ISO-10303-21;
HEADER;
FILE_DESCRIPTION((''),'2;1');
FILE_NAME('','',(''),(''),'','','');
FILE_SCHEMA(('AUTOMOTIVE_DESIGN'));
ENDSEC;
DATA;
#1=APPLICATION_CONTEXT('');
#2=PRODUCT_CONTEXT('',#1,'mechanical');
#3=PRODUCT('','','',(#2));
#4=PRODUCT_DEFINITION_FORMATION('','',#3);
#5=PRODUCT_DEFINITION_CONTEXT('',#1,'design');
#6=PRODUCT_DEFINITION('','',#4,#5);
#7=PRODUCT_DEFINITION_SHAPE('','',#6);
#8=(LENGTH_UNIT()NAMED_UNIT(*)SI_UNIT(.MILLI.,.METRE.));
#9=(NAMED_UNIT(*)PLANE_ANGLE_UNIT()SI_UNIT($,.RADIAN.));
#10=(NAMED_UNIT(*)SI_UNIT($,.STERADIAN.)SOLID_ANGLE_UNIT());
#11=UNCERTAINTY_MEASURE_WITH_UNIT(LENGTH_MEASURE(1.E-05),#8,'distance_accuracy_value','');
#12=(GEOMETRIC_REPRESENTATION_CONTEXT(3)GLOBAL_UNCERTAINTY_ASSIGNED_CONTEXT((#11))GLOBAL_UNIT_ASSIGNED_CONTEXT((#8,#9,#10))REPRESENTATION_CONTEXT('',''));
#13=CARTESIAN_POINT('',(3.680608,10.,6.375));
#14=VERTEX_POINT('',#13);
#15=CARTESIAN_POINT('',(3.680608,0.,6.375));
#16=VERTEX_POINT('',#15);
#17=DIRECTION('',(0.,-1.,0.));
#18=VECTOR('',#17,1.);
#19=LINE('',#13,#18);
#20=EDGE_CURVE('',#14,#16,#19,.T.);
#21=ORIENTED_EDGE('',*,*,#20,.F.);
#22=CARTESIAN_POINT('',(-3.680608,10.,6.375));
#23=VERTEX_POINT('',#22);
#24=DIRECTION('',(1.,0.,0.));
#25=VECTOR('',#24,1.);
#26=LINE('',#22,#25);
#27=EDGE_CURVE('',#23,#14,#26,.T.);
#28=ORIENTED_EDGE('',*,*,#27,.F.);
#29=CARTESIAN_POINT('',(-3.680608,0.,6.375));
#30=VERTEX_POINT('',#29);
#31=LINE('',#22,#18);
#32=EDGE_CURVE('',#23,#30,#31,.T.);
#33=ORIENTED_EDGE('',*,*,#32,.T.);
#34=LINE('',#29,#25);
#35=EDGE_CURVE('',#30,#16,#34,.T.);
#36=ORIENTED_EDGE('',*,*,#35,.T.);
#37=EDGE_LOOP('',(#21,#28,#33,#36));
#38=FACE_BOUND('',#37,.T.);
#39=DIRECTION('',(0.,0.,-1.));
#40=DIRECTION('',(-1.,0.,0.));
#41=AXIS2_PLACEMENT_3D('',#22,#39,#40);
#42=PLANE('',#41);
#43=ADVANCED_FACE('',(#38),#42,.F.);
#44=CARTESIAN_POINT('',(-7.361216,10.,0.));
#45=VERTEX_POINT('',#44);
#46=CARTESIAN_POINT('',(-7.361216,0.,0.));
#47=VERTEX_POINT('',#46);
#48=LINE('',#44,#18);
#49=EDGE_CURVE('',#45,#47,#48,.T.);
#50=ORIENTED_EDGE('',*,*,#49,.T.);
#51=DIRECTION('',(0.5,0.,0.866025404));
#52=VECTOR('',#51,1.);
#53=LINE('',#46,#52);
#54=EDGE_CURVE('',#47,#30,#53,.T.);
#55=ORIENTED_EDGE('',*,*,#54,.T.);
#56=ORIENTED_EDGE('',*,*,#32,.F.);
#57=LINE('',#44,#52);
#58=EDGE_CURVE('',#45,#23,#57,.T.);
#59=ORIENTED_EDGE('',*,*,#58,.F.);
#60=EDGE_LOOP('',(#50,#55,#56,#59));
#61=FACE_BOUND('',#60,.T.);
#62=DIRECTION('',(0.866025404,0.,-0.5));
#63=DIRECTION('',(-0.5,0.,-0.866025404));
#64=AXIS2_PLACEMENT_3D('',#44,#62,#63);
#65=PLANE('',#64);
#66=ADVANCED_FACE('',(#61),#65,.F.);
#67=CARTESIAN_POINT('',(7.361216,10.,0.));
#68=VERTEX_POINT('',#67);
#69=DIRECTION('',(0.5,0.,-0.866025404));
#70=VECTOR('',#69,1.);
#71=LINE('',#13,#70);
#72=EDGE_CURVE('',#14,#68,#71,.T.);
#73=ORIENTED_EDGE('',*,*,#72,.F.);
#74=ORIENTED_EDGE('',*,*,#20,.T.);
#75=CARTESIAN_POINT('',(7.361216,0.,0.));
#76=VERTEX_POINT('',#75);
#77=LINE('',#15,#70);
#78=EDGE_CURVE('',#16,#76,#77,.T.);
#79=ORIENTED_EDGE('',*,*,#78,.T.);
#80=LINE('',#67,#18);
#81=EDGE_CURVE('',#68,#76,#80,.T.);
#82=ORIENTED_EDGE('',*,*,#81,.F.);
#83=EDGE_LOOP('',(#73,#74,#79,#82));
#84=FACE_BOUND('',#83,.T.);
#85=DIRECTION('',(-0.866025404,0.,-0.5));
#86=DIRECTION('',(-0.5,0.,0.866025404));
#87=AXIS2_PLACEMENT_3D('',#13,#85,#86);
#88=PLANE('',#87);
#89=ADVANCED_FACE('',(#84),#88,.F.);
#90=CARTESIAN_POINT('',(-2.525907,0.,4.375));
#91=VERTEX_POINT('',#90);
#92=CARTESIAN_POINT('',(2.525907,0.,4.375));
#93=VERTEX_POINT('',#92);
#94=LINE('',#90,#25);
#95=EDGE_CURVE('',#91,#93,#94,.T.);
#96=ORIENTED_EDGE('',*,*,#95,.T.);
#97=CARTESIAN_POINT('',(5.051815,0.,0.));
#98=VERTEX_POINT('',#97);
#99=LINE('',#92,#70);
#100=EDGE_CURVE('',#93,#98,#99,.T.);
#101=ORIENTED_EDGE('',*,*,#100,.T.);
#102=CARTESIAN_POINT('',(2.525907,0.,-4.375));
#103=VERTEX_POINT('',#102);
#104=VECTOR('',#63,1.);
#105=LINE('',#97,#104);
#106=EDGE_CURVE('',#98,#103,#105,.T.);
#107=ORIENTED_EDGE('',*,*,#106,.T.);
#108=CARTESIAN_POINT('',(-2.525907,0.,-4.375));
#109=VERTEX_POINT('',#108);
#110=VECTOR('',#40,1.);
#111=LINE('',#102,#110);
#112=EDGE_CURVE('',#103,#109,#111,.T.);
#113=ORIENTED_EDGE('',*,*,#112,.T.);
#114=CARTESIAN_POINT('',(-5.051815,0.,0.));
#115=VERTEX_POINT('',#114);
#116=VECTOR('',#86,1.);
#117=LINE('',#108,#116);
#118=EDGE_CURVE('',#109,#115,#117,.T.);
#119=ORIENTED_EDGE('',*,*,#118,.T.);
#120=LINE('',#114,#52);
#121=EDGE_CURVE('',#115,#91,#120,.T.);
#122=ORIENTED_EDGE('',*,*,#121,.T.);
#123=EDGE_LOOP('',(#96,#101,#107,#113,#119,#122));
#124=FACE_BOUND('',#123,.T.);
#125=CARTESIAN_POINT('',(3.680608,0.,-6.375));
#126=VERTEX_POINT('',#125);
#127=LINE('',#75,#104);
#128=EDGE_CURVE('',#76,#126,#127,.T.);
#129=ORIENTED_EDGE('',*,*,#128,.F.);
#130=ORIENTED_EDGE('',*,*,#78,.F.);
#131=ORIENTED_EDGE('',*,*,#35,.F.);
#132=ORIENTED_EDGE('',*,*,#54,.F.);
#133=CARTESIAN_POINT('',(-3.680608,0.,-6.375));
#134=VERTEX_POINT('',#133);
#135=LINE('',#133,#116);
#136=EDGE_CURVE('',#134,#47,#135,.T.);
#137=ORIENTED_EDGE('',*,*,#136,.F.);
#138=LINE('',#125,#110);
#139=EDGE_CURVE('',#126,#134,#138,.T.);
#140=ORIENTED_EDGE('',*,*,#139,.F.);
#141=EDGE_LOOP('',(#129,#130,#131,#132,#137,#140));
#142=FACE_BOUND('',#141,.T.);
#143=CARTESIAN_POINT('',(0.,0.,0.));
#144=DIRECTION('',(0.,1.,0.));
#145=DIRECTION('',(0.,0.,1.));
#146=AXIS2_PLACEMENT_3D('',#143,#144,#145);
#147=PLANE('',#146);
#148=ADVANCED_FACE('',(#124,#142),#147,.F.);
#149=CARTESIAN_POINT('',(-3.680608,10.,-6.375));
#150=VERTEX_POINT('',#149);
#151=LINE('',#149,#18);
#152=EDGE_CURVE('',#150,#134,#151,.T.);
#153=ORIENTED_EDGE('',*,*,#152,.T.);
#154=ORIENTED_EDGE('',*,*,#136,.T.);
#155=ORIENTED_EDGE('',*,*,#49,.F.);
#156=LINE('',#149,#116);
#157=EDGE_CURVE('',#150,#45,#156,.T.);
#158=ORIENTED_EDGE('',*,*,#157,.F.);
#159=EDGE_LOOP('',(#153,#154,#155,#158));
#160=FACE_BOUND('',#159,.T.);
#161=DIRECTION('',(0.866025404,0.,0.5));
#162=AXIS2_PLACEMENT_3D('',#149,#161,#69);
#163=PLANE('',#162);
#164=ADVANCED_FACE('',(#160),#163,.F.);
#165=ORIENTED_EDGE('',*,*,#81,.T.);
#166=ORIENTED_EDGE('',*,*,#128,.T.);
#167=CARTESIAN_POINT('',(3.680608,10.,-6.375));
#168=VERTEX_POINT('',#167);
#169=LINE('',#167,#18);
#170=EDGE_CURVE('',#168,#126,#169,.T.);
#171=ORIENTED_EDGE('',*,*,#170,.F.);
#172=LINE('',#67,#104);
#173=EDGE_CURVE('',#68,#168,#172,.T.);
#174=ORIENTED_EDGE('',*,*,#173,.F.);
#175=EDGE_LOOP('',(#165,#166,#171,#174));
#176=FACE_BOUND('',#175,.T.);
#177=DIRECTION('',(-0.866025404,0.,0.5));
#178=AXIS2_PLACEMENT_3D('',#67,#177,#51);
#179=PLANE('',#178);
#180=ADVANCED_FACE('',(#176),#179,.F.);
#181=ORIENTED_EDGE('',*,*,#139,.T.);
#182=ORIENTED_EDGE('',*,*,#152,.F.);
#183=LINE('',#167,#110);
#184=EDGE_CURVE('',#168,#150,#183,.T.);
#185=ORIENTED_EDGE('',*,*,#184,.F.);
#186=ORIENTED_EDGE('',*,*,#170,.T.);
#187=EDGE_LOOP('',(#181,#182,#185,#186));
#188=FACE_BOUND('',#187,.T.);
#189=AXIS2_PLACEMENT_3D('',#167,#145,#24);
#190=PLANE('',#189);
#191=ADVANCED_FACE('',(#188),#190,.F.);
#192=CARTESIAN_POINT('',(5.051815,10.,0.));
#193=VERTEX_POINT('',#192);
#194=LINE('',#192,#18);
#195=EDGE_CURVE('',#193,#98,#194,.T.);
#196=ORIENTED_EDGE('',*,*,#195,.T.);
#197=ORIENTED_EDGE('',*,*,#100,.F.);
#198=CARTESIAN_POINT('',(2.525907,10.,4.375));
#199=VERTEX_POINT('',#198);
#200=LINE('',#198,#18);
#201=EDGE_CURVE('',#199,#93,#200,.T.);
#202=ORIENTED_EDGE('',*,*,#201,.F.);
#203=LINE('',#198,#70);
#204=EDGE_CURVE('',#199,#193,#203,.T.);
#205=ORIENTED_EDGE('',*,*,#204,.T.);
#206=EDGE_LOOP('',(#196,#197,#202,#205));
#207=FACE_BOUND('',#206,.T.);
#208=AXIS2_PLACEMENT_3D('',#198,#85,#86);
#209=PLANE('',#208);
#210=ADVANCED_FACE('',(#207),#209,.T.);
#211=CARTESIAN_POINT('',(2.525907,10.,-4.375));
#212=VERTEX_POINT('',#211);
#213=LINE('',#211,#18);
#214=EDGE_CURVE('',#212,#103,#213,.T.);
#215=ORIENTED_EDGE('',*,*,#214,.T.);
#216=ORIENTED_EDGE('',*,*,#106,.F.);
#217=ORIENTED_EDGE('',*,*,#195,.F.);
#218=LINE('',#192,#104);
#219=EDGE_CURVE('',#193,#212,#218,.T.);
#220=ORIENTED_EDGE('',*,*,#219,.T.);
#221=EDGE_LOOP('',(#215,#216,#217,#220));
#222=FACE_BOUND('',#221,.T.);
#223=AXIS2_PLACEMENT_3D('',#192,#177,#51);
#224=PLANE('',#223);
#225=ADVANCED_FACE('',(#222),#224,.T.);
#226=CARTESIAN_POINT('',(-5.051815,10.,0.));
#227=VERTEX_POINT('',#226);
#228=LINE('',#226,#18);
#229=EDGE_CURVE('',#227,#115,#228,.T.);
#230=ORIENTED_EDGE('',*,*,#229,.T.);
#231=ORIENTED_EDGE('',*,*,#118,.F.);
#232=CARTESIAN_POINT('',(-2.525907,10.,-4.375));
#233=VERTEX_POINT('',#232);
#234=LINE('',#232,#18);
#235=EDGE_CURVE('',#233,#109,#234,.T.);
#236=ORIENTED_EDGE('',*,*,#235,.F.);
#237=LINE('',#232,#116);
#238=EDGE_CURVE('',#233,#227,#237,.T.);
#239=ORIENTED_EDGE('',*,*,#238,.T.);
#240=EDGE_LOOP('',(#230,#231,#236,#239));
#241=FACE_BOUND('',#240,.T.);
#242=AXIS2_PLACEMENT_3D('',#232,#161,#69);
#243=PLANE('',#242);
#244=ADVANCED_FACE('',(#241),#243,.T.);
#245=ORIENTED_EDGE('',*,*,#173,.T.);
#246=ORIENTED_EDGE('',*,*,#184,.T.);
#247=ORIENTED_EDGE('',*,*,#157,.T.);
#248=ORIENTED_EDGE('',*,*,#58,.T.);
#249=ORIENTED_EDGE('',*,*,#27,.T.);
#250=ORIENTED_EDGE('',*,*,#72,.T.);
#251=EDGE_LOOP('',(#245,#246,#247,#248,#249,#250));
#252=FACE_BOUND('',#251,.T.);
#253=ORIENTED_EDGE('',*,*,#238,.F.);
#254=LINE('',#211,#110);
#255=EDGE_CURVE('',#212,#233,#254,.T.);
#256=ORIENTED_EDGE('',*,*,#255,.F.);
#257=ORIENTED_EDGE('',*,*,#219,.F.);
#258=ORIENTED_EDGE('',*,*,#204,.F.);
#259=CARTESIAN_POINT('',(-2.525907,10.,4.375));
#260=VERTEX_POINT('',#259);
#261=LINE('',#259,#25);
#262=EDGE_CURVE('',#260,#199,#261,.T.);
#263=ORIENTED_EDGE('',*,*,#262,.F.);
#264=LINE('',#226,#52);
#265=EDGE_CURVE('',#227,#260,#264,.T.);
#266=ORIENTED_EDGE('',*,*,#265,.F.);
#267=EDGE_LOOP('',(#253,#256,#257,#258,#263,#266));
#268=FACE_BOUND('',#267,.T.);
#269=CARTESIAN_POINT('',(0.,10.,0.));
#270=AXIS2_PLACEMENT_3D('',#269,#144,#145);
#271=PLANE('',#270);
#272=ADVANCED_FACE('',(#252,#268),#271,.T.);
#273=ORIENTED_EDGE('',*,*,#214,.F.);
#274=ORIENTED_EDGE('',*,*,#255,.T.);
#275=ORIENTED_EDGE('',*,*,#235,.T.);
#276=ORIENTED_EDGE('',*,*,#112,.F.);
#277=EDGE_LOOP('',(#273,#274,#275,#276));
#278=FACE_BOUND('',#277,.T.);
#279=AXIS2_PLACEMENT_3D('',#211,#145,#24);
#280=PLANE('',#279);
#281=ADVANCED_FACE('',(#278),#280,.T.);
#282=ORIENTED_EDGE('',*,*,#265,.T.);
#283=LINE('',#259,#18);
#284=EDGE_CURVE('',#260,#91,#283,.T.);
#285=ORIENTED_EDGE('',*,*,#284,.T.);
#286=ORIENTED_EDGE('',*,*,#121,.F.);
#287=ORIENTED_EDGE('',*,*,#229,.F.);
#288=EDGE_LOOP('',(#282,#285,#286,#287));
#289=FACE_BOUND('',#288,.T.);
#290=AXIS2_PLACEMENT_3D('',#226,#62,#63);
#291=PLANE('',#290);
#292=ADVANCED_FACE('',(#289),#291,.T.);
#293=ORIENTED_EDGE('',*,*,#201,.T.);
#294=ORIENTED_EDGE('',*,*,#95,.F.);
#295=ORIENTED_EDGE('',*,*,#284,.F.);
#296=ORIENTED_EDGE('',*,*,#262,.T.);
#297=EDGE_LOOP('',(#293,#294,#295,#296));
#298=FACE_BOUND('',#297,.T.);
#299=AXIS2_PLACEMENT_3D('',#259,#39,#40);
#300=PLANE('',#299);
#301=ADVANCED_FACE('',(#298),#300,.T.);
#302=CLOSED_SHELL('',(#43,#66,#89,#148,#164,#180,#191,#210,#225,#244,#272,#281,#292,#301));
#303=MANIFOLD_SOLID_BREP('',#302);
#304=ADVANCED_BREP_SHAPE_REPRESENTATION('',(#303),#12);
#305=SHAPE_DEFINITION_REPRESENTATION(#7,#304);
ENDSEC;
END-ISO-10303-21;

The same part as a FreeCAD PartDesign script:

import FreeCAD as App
import Part
import Sketcher
Q = App.Units.Quantity


def add_polygon(sketch, points):
    """Adds a closed chain of lines whose ends are joined by coincident constraints."""
    first, n = sketch.GeometryCount, len(points)
    for a, b in zip(points, points[1:] + points[:1]):
        sketch.addGeometry(Part.LineSegment(App.Vector(*a, 0), App.Vector(*b, 0)), False)
    for i in range(n):
        sketch.addConstraint(Sketcher.Constraint("Coincident", first + i, 2, first + (i + 1) % n, 1))

doc = App.newDocument("Part")
body = doc.addObject("PartDesign::Body", "Body")

# Sketch on XZ plane
sketch1 = doc.addObject("Sketcher::SketchObject", "Sketch")
body.addObject(sketch1)
sketch1.AttachmentSupport = (doc.XZ_Plane, [""])
sketch1.MapMode = "FlatFace"
add_polygon(sketch1, [(7.361216, 0), (3.680608, -6.375), (-3.680608, -6.375), (-7.361216, 0), (-3.680608, 6.375), (3.680608, 6.375)])  # lines 0-5
add_polygon(sketch1, [(-2.525907, -4.375), (2.525907, -4.375), (5.051815, 0), (2.525907, 4.375), (-2.525907, 4.375), (-5.051815, 0)])  # lines 6-11
sketch1.addConstraint([
    Sketcher.Constraint("Horizontal", 1),
    Sketcher.Constraint("Horizontal", 4),
    Sketcher.Constraint("Horizontal", 6),
    Sketcher.Constraint("Horizontal", 9),
    Sketcher.Constraint("Symmetric", 0, 2, 3, 2, -1, 1),
    Sketcher.Constraint("Symmetric", 2, 2, 5, 2, -1, 1),
    Sketcher.Constraint("Symmetric", 6, 2, 9, 2, -1, 1),
    Sketcher.Constraint("Symmetric", 7, 2, 10, 2, -1, 1),
    Sketcher.Constraint("PointOnObject", 2, 2, -1),
    Sketcher.Constraint("PointOnObject", 7, 2, -1),
    Sketcher.Constraint("Parallel", 2, 5),
    Sketcher.Constraint("Parallel", 3, 7),
    Sketcher.Constraint("Parallel", 5, 8),
    Sketcher.Constraint("Parallel", 8, 11),
    Sketcher.Constraint("Vertical", 1, 2, 3, 2),
    Sketcher.Constraint("Angle", 0, Q("-120 deg")),
    Sketcher.Constraint("DistanceY", 0, 2, 6, 2, Q("2 mm")),
    Sketcher.Constraint("DistanceY", 1, 2, 3, 2, Q("12.75 mm")),
    Sketcher.Constraint("DistanceX", 6, 2, 0, 2, Q("1.154701 mm")),
    Sketcher.Constraint("DistanceX", 1, 2, 1, 1, Q("7.361216 mm")),
])
pad1 = doc.addObject("PartDesign::Pad", "Pad")
body.addObject(pad1)
pad1.Profile = sketch1
pad1.Length = 10
pad1.Reversed = True

doc.recompute()
